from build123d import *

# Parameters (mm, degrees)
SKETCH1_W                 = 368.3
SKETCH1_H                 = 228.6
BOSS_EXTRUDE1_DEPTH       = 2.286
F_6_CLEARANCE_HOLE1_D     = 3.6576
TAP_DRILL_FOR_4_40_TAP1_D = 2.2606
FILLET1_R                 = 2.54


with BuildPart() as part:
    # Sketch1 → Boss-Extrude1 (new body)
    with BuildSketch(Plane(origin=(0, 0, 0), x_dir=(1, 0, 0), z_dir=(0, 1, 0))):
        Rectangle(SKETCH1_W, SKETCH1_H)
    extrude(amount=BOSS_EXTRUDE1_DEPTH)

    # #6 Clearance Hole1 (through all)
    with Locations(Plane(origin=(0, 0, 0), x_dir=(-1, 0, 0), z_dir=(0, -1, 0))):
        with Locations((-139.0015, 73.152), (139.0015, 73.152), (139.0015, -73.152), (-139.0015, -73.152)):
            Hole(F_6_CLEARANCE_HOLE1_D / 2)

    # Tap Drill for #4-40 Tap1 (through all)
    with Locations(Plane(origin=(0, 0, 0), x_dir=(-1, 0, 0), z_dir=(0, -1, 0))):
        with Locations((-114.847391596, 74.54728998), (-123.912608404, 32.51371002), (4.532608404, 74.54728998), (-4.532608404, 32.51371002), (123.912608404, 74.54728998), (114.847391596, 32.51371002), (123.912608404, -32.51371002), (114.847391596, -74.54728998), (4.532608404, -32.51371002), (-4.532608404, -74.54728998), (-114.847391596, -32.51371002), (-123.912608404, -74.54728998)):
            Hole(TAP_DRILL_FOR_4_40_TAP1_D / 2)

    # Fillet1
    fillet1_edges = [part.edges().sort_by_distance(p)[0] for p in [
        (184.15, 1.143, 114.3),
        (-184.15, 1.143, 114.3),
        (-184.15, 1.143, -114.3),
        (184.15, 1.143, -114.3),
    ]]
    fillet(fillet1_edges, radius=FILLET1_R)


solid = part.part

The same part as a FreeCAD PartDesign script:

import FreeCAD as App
import Part
import Sketcher
from FreeCAD import Vector
Q = App.Units.Quantity


def edges_at(feature, points):
    """Names of the edges that pass closest to the given points."""
    edges = feature.Shape.Edges
    near = lambda p: min(range(len(edges)), key=lambda i: edges[i].distToShape(Part.Vertex(*p))[0])
    return sorted({f"Edge{near(p) + 1}" for p in points})

doc = App.newDocument("Part")
body = doc.addObject("PartDesign::Body", "Body")

# Sketch on XZ plane
sketch1 = doc.addObject("Sketcher::SketchObject", "Sketch")
body.addObject(sketch1)
sketch1.AttachmentSupport = (doc.XZ_Plane, [""])
sketch1.MapMode = "FlatFace"
sketch1.addGeometry(Part.LineSegment(Vector(-184, -114, 0), Vector(-184, 114, 0)), False)
sketch1.addGeometry(Part.LineSegment(Vector(-184, 114, 0), Vector(184, 114, 0)), False)
sketch1.addGeometry(Part.LineSegment(Vector(184, 114, 0), Vector(184, -114, 0)), False)
sketch1.addGeometry(Part.LineSegment(Vector(184, -114, 0), Vector(-184, -114, 0)), False)
sketch1.addConstraint(Sketcher.Constraint("Coincident", 0, 2, 1, 1))
sketch1.addConstraint(Sketcher.Constraint("Coincident", 1, 2, 2, 1))
sketch1.addConstraint(Sketcher.Constraint("Coincident", 2, 2, 3, 1))
sketch1.addConstraint(Sketcher.Constraint("Coincident", 3, 2, 0, 1))
sketch1.addConstraint(Sketcher.Constraint("Vertical", 0))
sketch1.addConstraint(Sketcher.Constraint("Horizontal", 1))
sketch1.addConstraint(Sketcher.Constraint("Vertical", 2))
sketch1.addConstraint(Sketcher.Constraint("Horizontal", 3))
sketch1.addConstraint(Sketcher.Constraint("Symmetric", 0, 2, 2, 2, -1, 1))
sketch1.addConstraint(Sketcher.Constraint("DistanceY", 0, 1, 0, 2, Q("9 in")))
sketch1.addConstraint(Sketcher.Constraint("DistanceX", 1, 1, 1, 2, Q("14.5 in")))
pad1 = doc.addObject("PartDesign::Pad", "Pad")
body.addObject(pad1)
pad1.Profile = sketch1
pad1.Length = Q("0.09 in")
pad1.Reversed = True

# Sketch on XZ plane
sketch2 = doc.addObject("Sketcher::SketchObject", "Sketch001")
body.addObject(sketch2)
sketch2.AttachmentSupport = (doc.XZ_Plane, [""])
sketch2.MapMode = "FlatFace"
sketch2.addGeometry(Part.Circle(Vector(139, -73.2, 0), Vector(0, 0, 1), 1.8), False)
sketch2.addGeometry(Part.Circle(Vector(-139, -73.2, 0), Vector(0, 0, 1), 1.8), False)
sketch2.addGeometry(Part.Circle(Vector(-139, 73.2, 0), Vector(0, 0, 1), 1.8), False)
sketch2.addGeometry(Part.Circle(Vector(139, 73.2, 0), Vector(0, 0, 1), 1.8), False)
sketch2.addConstraint(Sketcher.Constraint("Equal", 0, 1))
sketch2.addConstraint(Sketcher.Constraint("Equal", 1, 2))
sketch2.addConstraint(Sketcher.Constraint("Equal", 2, 3))
sketch2.addConstraint(Sketcher.Constraint("Symmetric", 0, 3, 2, 3, -1, 1))
sketch2.addConstraint(Sketcher.Constraint("Symmetric", 1, 3, 3, 3, -1, 1))
sketch2.addConstraint(Sketcher.Constraint("Symmetric", 0, 3, 1, 3, -2))
sketch2.addConstraint(Sketcher.Constraint("Diameter", 0, Q("0.144 in")))
sketch2.addConstraint(Sketcher.Constraint("DistanceY", 0, 3, -1, 1, Q("2.88 in")))
sketch2.addConstraint(Sketcher.Constraint("DistanceX", 1, 3, 0, 3, Q("10.945 in")))
doc.recompute()
hole = doc.addObject("PartDesign::Hole", "Hole")
body.addObject(hole)
hole.Profile = sketch2
hole.ThreadType = "None"
hole.Diameter = Q("0.144 in")
hole.DepthType = "ThroughAll"

# Sketch on XZ plane
sketch3 = doc.addObject("Sketcher::SketchObject", "Sketch002")
body.addObject(sketch3)
sketch3.AttachmentSupport = (doc.XZ_Plane, [""])
sketch3.MapMode = "FlatFace"
sketch3.addGeometry(Part.Circle(Vector(114.8, -74.5, 0), Vector(0, 0, 1), 1.1), False)
sketch3.addGeometry(Part.Circle(Vector(123.9, -32.5, 0), Vector(0, 0, 1), 1.1), False)
sketch3.addGeometry(Part.Circle(Vector(-4.5, -74.5, 0), Vector(0, 0, 1), 1.1), False)
sketch3.addGeometry(Part.Circle(Vector(4.5, -32.5, 0), Vector(0, 0, 1), 1.1), False)
sketch3.addGeometry(Part.Circle(Vector(-123.9, -74.5, 0), Vector(0, 0, 1), 1.1), False)
sketch3.addGeometry(Part.Circle(Vector(-114.8, -32.5, 0), Vector(0, 0, 1), 1.1), False)
sketch3.addGeometry(Part.Circle(Vector(-123.9, 32.5, 0), Vector(0, 0, 1), 1.1), False)
sketch3.addGeometry(Part.Circle(Vector(-114.8, 74.5, 0), Vector(0, 0, 1), 1.1), False)
sketch3.addGeometry(Part.Circle(Vector(-4.5, 32.5, 0), Vector(0, 0, 1), 1.1), False)
sketch3.addGeometry(Part.Circle(Vector(4.5, 74.5, 0), Vector(0, 0, 1), 1.1), False)
sketch3.addGeometry(Part.Circle(Vector(114.8, 32.5, 0), Vector(0, 0, 1), 1.1), False)
sketch3.addGeometry(Part.Circle(Vector(123.9, 74.5, 0), Vector(0, 0, 1), 1.1), False)
sketch3.addConstraint(Sketcher.Constraint("Equal", 0, 1))
sketch3.addConstraint(Sketcher.Constraint("Equal", 1, 2))
sketch3.addConstraint(Sketcher.Constraint("Equal", 2, 3))
sketch3.addConstraint(Sketcher.Constraint("Equal", 3, 4))
sketch3.addConstraint(Sketcher.Constraint("Equal", 4, 5))
sketch3.addConstraint(Sketcher.Constraint("Equal", 5, 6))
sketch3.addConstraint(Sketcher.Constraint("Equal", 6, 7))
sketch3.addConstraint(Sketcher.Constraint("Equal", 7, 8))
sketch3.addConstraint(Sketcher.Constraint("Equal", 8, 9))
sketch3.addConstraint(Sketcher.Constraint("Equal", 9, 10))
sketch3.addConstraint(Sketcher.Constraint("Equal", 10, 11))
sketch3.addConstraint(Sketcher.Constraint("Symmetric", 1, 3, 6, 3, -1, 1))
sketch3.addConstraint(Sketcher.Constraint("Symmetric", 0, 3, 7, 3, -1, 1))
sketch3.addConstraint(Sketcher.Constraint("Symmetric", 3, 3, 8, 3, -1, 1))
sketch3.addConstraint(Sketcher.Constraint("Symmetric", 2, 3, 9, 3, -1, 1))
sketch3.addConstraint(Sketcher.Constraint("Symmetric", 5, 3, 10, 3, -1, 1))
sketch3.addConstraint(Sketcher.Constraint("Symmetric", 4, 3, 11, 3, -1, 1))
sketch3.addConstraint(Sketcher.Constraint("Horizontal", 0, 3, 2, 3))
sketch3.addConstraint(Sketcher.Constraint("Horizontal", 1, 3, 3, 3))
sketch3.addConstraint(Sketcher.Constraint("Horizontal", 2, 3, 4, 3))
sketch3.addConstraint(Sketcher.Constraint("Horizontal", 3, 3, 5, 3))
sketch3.addConstraint(Sketcher.Constraint("Vertical", 4, 3, 6, 3))
sketch3.addConstraint(Sketcher.Constraint("Vertical", 5, 3, 7, 3))
sketch3.addConstraint(Sketcher.Constraint("Vertical", 2, 3, 8, 3))
sketch3.addConstraint(Sketcher.Constraint("Diameter", 0, Q("0.089 in")))
sketch3.addConstraint(Sketcher.Constraint("DistanceX", 2, 3, 0, 3, Q("4.7 in")))
sketch3.addConstraint(Sketcher.Constraint("DistanceX", 3, 3, 1, 3, Q("4.7 in")))
sketch3.addConstraint(Sketcher.Constraint("DistanceY", 4, 3, 6, 3, Q("4.215 in")))
sketch3.addConstraint(Sketcher.Constraint("DistanceX", -1, 1, 0, 3, 114.847392))
sketch3.addConstraint(Sketcher.Constraint("DistanceY", 0, 3, -1, 1, 74.54729))
doc.recompute()
hole2 = doc.addObject("PartDesign::Hole", "Hole001")
body.addObject(hole2)
hole2.Profile = sketch3
hole2.ThreadType = "None"
hole2.Diameter = Q("0.089 in")
hole2.DepthType = "ThroughAll"
doc.recompute()

fillet = doc.addObject("PartDesign::Fillet", "Fillet")
body.addObject(fillet)
fillet.Base = (hole2, edges_at(hole2, [
    (184.15, 1.143, 114.3),
    (-184.15, 1.143, 114.3),
    (-184.15, 1.143, -114.3),
    (184.15, 1.143, -114.3),
]))
fillet.Radius = Q("0.1 in")

doc.recompute()
